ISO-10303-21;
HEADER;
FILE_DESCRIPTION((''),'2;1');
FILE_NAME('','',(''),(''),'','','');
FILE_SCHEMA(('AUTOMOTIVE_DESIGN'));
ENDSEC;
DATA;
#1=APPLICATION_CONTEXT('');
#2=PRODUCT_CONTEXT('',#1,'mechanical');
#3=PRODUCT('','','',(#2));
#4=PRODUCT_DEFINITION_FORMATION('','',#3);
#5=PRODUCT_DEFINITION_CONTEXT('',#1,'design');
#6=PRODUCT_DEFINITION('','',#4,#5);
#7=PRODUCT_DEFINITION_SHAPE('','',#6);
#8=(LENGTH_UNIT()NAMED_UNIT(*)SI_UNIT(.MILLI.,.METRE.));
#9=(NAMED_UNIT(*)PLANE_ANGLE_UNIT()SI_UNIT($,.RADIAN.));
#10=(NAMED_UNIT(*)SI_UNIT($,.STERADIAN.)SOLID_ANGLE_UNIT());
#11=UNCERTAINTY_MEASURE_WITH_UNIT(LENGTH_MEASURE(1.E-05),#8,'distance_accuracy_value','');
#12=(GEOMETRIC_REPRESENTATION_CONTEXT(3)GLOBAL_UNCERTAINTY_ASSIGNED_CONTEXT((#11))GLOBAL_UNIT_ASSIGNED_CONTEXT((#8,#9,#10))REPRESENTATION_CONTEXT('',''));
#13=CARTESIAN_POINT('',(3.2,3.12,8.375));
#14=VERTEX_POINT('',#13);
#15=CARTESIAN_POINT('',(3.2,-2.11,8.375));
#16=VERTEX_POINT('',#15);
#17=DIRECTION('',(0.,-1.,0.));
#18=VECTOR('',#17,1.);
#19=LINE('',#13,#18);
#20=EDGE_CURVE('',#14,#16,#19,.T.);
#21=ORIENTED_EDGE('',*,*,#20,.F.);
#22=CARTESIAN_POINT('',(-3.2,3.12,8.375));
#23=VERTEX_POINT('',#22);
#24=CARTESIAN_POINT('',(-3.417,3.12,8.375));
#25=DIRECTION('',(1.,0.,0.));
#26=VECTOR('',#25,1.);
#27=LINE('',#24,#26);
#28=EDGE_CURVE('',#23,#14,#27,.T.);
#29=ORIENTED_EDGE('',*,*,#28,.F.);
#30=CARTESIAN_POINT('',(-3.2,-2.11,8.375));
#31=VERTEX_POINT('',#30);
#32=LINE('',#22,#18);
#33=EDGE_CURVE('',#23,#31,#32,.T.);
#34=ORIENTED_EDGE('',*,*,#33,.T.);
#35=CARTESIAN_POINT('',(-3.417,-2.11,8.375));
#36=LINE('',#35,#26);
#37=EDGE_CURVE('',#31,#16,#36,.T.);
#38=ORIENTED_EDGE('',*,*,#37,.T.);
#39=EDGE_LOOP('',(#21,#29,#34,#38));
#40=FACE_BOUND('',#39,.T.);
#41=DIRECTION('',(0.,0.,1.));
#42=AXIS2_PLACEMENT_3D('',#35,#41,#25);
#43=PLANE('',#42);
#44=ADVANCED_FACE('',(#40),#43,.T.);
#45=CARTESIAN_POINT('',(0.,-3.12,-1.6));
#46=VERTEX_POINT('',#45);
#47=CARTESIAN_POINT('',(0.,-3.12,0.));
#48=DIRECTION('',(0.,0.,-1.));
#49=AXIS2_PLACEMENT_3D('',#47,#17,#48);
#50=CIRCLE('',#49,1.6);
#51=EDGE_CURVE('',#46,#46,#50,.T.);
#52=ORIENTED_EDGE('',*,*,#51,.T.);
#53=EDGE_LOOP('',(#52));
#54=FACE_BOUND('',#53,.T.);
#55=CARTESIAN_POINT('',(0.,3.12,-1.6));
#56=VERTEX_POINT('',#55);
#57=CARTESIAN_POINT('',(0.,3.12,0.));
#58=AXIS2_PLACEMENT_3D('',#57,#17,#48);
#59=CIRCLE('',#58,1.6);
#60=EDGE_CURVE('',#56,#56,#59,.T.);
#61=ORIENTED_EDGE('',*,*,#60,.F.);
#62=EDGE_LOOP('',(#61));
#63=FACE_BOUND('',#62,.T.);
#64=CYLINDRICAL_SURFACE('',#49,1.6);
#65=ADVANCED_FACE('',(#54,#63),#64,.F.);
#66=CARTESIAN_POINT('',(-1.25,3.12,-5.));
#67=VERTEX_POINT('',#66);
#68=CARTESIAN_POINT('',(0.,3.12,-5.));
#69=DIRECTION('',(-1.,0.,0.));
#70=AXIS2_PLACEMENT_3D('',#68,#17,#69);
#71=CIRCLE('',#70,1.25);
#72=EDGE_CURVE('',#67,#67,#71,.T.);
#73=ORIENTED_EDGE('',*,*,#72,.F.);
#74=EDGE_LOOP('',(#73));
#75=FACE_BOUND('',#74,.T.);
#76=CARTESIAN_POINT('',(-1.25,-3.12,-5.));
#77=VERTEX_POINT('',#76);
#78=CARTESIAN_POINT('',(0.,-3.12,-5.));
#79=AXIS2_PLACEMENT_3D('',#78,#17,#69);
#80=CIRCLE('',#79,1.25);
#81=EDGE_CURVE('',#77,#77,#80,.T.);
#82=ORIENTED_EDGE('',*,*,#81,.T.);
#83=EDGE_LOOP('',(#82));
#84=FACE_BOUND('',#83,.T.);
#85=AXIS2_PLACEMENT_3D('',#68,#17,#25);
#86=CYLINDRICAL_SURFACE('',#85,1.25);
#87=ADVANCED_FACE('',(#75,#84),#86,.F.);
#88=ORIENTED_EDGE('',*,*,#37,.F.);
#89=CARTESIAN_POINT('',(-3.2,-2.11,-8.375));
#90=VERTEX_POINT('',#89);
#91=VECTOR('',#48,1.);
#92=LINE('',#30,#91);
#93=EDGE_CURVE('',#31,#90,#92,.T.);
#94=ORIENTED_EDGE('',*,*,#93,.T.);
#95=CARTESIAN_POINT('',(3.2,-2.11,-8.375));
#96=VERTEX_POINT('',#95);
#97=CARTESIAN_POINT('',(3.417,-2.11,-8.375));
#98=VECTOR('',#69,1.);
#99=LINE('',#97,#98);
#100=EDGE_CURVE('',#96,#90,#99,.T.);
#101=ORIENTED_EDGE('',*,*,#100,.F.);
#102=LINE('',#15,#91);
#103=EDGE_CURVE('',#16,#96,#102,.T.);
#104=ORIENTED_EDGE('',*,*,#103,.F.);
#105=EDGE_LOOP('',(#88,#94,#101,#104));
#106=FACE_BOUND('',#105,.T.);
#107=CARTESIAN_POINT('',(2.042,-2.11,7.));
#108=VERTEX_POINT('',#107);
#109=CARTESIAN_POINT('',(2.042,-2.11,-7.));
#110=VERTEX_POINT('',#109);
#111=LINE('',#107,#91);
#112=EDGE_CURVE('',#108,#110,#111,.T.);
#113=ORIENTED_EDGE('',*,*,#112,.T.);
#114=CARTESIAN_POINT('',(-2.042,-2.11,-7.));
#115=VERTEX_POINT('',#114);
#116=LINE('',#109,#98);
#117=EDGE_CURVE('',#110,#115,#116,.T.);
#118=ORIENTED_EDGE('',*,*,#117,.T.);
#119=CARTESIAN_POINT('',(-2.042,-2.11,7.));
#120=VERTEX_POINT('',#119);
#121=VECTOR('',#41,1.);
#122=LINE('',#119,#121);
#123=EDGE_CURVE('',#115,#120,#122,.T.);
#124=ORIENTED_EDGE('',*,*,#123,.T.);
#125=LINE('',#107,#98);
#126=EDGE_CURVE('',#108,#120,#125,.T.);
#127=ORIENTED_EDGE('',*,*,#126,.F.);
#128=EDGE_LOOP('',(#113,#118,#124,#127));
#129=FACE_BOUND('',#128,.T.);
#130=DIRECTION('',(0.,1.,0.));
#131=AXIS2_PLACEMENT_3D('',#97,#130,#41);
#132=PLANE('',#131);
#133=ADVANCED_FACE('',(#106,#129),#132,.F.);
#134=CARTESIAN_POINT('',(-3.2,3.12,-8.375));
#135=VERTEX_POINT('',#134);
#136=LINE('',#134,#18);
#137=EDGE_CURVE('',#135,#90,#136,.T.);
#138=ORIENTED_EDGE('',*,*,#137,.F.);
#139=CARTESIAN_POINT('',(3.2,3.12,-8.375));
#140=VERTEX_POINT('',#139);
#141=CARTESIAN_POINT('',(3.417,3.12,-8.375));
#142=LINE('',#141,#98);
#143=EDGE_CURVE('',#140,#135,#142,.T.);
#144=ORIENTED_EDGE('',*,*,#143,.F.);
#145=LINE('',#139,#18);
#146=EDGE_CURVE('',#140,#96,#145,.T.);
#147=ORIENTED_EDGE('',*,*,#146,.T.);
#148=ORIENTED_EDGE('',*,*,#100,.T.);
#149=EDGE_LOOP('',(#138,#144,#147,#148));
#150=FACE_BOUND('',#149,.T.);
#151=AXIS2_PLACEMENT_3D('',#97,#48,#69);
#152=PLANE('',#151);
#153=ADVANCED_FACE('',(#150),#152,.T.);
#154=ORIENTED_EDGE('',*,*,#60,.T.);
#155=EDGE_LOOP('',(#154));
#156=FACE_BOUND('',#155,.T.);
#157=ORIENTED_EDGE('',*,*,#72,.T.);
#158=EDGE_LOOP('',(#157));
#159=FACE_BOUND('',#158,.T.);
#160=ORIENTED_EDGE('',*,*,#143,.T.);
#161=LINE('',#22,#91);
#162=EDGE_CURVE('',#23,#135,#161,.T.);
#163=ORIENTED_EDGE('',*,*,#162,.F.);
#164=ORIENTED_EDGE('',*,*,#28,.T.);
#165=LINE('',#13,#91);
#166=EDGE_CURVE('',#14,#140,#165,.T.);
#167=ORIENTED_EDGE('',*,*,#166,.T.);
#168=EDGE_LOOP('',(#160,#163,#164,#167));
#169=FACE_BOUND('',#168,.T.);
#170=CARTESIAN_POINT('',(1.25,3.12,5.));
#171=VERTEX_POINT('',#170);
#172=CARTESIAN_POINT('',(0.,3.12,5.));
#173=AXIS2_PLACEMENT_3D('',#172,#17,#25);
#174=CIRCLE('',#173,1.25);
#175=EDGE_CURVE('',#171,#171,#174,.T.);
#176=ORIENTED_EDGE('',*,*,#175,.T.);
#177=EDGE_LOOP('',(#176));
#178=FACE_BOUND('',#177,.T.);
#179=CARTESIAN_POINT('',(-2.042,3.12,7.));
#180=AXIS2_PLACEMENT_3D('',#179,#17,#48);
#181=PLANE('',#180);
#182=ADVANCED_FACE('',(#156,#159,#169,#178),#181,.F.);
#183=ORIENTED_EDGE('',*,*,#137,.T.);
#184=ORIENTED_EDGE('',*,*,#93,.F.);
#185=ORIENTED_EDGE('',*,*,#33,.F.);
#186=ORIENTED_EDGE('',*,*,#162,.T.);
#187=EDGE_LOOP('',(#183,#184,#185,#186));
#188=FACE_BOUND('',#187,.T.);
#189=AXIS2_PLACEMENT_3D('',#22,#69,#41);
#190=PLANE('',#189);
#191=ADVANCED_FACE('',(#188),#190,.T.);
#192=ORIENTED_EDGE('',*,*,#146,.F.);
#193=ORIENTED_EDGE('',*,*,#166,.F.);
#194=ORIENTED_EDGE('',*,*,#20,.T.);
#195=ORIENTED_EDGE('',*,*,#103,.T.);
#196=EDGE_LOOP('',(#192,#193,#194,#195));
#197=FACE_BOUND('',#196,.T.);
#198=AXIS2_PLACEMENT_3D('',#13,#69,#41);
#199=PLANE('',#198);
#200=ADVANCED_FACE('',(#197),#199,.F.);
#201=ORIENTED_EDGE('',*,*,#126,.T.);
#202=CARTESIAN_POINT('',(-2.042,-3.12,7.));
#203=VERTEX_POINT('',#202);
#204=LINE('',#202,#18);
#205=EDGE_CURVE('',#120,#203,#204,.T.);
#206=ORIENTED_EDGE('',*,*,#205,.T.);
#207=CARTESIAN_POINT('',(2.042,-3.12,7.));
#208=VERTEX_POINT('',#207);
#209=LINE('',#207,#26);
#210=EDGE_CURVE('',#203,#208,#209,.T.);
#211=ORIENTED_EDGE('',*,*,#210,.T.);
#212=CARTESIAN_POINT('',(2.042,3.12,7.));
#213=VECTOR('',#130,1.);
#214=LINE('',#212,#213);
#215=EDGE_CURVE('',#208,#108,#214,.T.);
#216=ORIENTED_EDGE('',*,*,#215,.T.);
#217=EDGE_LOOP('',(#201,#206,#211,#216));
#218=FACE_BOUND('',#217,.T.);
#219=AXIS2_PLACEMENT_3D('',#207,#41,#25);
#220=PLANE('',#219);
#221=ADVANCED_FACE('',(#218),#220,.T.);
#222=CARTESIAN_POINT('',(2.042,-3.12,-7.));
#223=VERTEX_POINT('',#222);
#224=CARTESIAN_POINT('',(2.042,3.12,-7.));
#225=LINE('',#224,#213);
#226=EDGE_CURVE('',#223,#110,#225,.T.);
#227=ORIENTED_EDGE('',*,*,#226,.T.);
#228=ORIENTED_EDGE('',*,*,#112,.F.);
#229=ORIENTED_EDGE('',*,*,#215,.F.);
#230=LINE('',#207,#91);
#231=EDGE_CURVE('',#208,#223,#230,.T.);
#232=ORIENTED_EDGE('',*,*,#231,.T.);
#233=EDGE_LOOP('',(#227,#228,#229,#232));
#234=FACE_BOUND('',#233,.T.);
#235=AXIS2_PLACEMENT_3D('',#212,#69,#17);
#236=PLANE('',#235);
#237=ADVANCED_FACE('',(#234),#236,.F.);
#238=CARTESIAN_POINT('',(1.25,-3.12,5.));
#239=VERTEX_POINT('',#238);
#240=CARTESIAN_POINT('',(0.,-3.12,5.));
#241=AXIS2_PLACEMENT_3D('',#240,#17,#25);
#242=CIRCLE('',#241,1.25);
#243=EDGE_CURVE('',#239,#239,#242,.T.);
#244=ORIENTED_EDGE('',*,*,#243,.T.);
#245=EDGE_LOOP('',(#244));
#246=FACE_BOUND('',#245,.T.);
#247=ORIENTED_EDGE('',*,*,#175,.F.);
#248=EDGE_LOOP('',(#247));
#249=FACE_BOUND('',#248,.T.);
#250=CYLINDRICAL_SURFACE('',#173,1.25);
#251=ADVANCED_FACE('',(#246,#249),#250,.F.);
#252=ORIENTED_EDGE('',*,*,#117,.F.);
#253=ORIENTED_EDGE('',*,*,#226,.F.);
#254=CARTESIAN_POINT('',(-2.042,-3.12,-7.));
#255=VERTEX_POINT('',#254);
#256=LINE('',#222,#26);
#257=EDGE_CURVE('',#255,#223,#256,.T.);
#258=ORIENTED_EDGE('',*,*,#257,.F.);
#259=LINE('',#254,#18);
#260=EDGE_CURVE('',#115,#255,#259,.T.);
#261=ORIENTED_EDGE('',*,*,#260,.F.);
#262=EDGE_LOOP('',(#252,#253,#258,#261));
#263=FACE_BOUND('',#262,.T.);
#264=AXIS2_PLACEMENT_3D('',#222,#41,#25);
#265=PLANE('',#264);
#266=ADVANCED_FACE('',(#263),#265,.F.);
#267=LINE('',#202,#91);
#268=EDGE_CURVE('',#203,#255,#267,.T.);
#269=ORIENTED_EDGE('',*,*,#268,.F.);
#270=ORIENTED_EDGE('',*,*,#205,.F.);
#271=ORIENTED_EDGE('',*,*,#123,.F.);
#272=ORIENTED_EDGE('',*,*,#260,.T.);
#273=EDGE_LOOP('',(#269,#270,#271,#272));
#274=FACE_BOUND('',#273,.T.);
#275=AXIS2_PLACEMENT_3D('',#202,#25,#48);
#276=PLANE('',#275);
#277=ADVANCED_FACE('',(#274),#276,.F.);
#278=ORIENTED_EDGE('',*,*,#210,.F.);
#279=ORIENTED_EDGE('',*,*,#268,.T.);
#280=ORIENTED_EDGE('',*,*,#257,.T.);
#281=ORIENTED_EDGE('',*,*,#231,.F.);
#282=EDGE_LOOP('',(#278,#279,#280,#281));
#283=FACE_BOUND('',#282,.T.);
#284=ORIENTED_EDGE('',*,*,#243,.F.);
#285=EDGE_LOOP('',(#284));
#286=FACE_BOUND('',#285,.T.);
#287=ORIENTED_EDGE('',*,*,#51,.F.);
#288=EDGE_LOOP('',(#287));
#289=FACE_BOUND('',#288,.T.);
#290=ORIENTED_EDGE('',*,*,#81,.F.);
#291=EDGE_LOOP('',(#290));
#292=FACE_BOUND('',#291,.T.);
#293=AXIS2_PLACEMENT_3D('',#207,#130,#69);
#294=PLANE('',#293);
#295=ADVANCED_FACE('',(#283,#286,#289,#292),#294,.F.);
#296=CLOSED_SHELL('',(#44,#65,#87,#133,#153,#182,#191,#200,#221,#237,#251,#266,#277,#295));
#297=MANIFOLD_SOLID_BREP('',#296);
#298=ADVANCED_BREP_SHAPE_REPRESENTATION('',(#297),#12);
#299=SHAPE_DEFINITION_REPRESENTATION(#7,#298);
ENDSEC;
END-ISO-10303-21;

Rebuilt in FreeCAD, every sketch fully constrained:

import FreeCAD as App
import Part
import Sketcher
from FreeCAD import Vector
Q = App.Units.Quantity


def add_polygon(sketch, points):
    """Adds a closed chain of lines whose ends are joined by coincident constraints."""
    first, n = sketch.GeometryCount, len(points)
    for a, b in zip(points, points[1:] + points[:1]):
        sketch.addGeometry(Part.LineSegment(App.Vector(*a, 0), App.Vector(*b, 0)), False)
    for i in range(n):
        sketch.addConstraint(Sketcher.Constraint("Coincident", first + i, 2, first + (i + 1) % n, 1))

doc = App.newDocument("Part")
body = doc.addObject("PartDesign::Body", "Body")

# Sketch on XY plane
sketch1 = body.newObject("Sketcher::SketchObject", "Sketch")
sketch1.AttachmentSupport = (doc.getObject("XY_Plane"), [""])
sketch1.MapMode = "FlatFace"
add_polygon(sketch1, [(-2.042, 3.12), (-2.042, -3.12), (2.042, -3.12), (2.042, 3.12)])  # lines 0-3
sketch1.addConstraint(Sketcher.Constraint("Vertical", 0))
sketch1.addConstraint(Sketcher.Constraint("Horizontal", 1))
sketch1.addConstraint(Sketcher.Constraint("Vertical", 2))
sketch1.addConstraint(Sketcher.Constraint("Horizontal", 3))
sketch1.addConstraint(Sketcher.Constraint("Symmetric", 0, 2, 2, 2, -1, 1))
sketch1.addConstraint(Sketcher.Constraint("DistanceY", 0, 2, 0, 1, Q("6.24 mm")))
sketch1.addConstraint(Sketcher.Constraint("DistanceX", 1, 1, 1, 2, Q("4.084 mm")))
pad1 = body.newObject("PartDesign::Pad", "Pad")
pad1.Profile = sketch1
pad1.Length = 14
pad1.Midplane = True

# Sketch on XZ plane
sketch2 = body.newObject("Sketcher::SketchObject", "Sketch001")
sketch2.AttachmentSupport = (doc.getObject("XZ_Plane"), [""])
sketch2.MapMode = "FlatFace"
sketch2.AttachmentOffset = App.Placement(Vector(0, 0, -3.12), App.Rotation())
add_polygon(sketch2, [(-3.417, -8.375), (-3.417, 8.375), (3.417, 8.375), (3.417, -8.375)])  # lines 0-3
sketch2.addConstraint(Sketcher.Constraint("Vertical", 0))
sketch2.addConstraint(Sketcher.Constraint("Horizontal", 1))
sketch2.addConstraint(Sketcher.Constraint("Vertical", 2))
sketch2.addConstraint(Sketcher.Constraint("Horizontal", 3))
sketch2.addConstraint(Sketcher.Constraint("Symmetric", 0, 2, 2, 2, -1, 1))
sketch2.addConstraint(Sketcher.Constraint("DistanceY", 0, 1, 0, 2, Q("16.75 mm")))
sketch2.addConstraint(Sketcher.Constraint("DistanceX", 1, 1, 1, 2, Q("6.834 mm")))
pad2 = body.newObject("PartDesign::Pad", "Pad001")
pad2.Profile = sketch2
pad2.Length = 5.23

# Sketch on XZ plane
sketch3 = body.newObject("Sketcher::SketchObject", "Sketch002")
sketch3.AttachmentSupport = (doc.getObject("XZ_Plane"), [""])
sketch3.MapMode = "FlatFace"
sketch3.AttachmentOffset = App.Placement(Vector(0, 0, 3.12), App.Rotation())
sketch3.addGeometry(Part.Circle(Vector(0, 0, 0), Vector(0, 0, 1), 1.6), False)
sketch3.addConstraint(Sketcher.Constraint("Coincident", 0, 3, -1, 1))
sketch3.addConstraint(Sketcher.Constraint("Diameter", 0, Q("3.2 mm")))
doc.recompute()
hole = body.newObject("PartDesign::Hole", "Hole")
hole.Profile = sketch3
hole.ThreadType = "None"
hole.Diameter = 3.2
hole.DepthType = "ThroughAll"

# Sketch on XZ plane
sketch4 = body.newObject("Sketcher::SketchObject", "Sketch003")
sketch4.AttachmentSupport = (doc.getObject("XZ_Plane"), [""])
sketch4.MapMode = "FlatFace"
sketch4.AttachmentOffset = App.Placement(Vector(0, 0, 3.12), App.Rotation())
sketch4.addGeometry(Part.Circle(Vector(0, 5, 0), Vector(0, 0, 1), 1.25), False)
sketch4.addGeometry(Part.Circle(Vector(0, -5, 0), Vector(0, 0, 1), 1.25), False)
sketch4.addConstraint(Sketcher.Constraint("Equal", 0, 1))
sketch4.addConstraint(Sketcher.Constraint("Symmetric", 0, 3, 1, 3, -1, 1))
sketch4.addConstraint(Sketcher.Constraint("PointOnObject", 0, 3, -2))
sketch4.addConstraint(Sketcher.Constraint("Diameter", 0, Q("2.5 mm")))
sketch4.addConstraint(Sketcher.Constraint("DistanceY", -1, 1, 0, 3, Q("5 mm")))
pocket1 = body.newObject("PartDesign::Pocket", "Pocket")
pocket1.Profile = sketch4
pocket1.Type = "ThroughAll"

# Sketch on XZ plane
sketch5 = body.newObject("Sketcher::SketchObject", "Sketch004")
sketch5.AttachmentSupport = (doc.getObject("XZ_Plane"), [""])
sketch5.MapMode = "FlatFace"
sketch5.AttachmentOffset = App.Placement(Vector(0, 0, 2.11), App.Rotation())
add_polygon(sketch5, [(3.2, 8.375), (3.2, -8.375), (3.417, -8.375), (3.417, 8.375)])  # lines 0-3
sketch5.addConstraint(Sketcher.Constraint("Vertical", 0))
sketch5.addConstraint(Sketcher.Constraint("Horizontal", 1))
sketch5.addConstraint(Sketcher.Constraint("Vertical", 2))
sketch5.addConstraint(Sketcher.Constraint("Horizontal", 3))
sketch5.addConstraint(Sketcher.Constraint("DistanceY", 0, 2, 0, 1, Q("16.75 mm")))
sketch5.addConstraint(Sketcher.Constraint("DistanceX", -1, 1, 0, 2, Q("3.2 mm")))
sketch5.addConstraint(Sketcher.Constraint("DistanceX", 1, 1, 1, 2, Q("0.217 mm")))
sketch5.addConstraint(Sketcher.Constraint("DistanceY", 0, 2, -1, 1, Q("8.375 mm")))
pocket2 = body.newObject("PartDesign::Pocket", "Pocket001")
pocket2.Profile = sketch5
pocket2.Type = "ThroughAll"
doc.recompute()

mirrored = body.newObject("PartDesign::Mirrored", "Mirrored")
mirrored.Originals = [pocket2]
mirrored.MirrorPlane = (doc.getObject("YZ_Plane"), [""])
body.Tip = mirrored

doc.recompute()
